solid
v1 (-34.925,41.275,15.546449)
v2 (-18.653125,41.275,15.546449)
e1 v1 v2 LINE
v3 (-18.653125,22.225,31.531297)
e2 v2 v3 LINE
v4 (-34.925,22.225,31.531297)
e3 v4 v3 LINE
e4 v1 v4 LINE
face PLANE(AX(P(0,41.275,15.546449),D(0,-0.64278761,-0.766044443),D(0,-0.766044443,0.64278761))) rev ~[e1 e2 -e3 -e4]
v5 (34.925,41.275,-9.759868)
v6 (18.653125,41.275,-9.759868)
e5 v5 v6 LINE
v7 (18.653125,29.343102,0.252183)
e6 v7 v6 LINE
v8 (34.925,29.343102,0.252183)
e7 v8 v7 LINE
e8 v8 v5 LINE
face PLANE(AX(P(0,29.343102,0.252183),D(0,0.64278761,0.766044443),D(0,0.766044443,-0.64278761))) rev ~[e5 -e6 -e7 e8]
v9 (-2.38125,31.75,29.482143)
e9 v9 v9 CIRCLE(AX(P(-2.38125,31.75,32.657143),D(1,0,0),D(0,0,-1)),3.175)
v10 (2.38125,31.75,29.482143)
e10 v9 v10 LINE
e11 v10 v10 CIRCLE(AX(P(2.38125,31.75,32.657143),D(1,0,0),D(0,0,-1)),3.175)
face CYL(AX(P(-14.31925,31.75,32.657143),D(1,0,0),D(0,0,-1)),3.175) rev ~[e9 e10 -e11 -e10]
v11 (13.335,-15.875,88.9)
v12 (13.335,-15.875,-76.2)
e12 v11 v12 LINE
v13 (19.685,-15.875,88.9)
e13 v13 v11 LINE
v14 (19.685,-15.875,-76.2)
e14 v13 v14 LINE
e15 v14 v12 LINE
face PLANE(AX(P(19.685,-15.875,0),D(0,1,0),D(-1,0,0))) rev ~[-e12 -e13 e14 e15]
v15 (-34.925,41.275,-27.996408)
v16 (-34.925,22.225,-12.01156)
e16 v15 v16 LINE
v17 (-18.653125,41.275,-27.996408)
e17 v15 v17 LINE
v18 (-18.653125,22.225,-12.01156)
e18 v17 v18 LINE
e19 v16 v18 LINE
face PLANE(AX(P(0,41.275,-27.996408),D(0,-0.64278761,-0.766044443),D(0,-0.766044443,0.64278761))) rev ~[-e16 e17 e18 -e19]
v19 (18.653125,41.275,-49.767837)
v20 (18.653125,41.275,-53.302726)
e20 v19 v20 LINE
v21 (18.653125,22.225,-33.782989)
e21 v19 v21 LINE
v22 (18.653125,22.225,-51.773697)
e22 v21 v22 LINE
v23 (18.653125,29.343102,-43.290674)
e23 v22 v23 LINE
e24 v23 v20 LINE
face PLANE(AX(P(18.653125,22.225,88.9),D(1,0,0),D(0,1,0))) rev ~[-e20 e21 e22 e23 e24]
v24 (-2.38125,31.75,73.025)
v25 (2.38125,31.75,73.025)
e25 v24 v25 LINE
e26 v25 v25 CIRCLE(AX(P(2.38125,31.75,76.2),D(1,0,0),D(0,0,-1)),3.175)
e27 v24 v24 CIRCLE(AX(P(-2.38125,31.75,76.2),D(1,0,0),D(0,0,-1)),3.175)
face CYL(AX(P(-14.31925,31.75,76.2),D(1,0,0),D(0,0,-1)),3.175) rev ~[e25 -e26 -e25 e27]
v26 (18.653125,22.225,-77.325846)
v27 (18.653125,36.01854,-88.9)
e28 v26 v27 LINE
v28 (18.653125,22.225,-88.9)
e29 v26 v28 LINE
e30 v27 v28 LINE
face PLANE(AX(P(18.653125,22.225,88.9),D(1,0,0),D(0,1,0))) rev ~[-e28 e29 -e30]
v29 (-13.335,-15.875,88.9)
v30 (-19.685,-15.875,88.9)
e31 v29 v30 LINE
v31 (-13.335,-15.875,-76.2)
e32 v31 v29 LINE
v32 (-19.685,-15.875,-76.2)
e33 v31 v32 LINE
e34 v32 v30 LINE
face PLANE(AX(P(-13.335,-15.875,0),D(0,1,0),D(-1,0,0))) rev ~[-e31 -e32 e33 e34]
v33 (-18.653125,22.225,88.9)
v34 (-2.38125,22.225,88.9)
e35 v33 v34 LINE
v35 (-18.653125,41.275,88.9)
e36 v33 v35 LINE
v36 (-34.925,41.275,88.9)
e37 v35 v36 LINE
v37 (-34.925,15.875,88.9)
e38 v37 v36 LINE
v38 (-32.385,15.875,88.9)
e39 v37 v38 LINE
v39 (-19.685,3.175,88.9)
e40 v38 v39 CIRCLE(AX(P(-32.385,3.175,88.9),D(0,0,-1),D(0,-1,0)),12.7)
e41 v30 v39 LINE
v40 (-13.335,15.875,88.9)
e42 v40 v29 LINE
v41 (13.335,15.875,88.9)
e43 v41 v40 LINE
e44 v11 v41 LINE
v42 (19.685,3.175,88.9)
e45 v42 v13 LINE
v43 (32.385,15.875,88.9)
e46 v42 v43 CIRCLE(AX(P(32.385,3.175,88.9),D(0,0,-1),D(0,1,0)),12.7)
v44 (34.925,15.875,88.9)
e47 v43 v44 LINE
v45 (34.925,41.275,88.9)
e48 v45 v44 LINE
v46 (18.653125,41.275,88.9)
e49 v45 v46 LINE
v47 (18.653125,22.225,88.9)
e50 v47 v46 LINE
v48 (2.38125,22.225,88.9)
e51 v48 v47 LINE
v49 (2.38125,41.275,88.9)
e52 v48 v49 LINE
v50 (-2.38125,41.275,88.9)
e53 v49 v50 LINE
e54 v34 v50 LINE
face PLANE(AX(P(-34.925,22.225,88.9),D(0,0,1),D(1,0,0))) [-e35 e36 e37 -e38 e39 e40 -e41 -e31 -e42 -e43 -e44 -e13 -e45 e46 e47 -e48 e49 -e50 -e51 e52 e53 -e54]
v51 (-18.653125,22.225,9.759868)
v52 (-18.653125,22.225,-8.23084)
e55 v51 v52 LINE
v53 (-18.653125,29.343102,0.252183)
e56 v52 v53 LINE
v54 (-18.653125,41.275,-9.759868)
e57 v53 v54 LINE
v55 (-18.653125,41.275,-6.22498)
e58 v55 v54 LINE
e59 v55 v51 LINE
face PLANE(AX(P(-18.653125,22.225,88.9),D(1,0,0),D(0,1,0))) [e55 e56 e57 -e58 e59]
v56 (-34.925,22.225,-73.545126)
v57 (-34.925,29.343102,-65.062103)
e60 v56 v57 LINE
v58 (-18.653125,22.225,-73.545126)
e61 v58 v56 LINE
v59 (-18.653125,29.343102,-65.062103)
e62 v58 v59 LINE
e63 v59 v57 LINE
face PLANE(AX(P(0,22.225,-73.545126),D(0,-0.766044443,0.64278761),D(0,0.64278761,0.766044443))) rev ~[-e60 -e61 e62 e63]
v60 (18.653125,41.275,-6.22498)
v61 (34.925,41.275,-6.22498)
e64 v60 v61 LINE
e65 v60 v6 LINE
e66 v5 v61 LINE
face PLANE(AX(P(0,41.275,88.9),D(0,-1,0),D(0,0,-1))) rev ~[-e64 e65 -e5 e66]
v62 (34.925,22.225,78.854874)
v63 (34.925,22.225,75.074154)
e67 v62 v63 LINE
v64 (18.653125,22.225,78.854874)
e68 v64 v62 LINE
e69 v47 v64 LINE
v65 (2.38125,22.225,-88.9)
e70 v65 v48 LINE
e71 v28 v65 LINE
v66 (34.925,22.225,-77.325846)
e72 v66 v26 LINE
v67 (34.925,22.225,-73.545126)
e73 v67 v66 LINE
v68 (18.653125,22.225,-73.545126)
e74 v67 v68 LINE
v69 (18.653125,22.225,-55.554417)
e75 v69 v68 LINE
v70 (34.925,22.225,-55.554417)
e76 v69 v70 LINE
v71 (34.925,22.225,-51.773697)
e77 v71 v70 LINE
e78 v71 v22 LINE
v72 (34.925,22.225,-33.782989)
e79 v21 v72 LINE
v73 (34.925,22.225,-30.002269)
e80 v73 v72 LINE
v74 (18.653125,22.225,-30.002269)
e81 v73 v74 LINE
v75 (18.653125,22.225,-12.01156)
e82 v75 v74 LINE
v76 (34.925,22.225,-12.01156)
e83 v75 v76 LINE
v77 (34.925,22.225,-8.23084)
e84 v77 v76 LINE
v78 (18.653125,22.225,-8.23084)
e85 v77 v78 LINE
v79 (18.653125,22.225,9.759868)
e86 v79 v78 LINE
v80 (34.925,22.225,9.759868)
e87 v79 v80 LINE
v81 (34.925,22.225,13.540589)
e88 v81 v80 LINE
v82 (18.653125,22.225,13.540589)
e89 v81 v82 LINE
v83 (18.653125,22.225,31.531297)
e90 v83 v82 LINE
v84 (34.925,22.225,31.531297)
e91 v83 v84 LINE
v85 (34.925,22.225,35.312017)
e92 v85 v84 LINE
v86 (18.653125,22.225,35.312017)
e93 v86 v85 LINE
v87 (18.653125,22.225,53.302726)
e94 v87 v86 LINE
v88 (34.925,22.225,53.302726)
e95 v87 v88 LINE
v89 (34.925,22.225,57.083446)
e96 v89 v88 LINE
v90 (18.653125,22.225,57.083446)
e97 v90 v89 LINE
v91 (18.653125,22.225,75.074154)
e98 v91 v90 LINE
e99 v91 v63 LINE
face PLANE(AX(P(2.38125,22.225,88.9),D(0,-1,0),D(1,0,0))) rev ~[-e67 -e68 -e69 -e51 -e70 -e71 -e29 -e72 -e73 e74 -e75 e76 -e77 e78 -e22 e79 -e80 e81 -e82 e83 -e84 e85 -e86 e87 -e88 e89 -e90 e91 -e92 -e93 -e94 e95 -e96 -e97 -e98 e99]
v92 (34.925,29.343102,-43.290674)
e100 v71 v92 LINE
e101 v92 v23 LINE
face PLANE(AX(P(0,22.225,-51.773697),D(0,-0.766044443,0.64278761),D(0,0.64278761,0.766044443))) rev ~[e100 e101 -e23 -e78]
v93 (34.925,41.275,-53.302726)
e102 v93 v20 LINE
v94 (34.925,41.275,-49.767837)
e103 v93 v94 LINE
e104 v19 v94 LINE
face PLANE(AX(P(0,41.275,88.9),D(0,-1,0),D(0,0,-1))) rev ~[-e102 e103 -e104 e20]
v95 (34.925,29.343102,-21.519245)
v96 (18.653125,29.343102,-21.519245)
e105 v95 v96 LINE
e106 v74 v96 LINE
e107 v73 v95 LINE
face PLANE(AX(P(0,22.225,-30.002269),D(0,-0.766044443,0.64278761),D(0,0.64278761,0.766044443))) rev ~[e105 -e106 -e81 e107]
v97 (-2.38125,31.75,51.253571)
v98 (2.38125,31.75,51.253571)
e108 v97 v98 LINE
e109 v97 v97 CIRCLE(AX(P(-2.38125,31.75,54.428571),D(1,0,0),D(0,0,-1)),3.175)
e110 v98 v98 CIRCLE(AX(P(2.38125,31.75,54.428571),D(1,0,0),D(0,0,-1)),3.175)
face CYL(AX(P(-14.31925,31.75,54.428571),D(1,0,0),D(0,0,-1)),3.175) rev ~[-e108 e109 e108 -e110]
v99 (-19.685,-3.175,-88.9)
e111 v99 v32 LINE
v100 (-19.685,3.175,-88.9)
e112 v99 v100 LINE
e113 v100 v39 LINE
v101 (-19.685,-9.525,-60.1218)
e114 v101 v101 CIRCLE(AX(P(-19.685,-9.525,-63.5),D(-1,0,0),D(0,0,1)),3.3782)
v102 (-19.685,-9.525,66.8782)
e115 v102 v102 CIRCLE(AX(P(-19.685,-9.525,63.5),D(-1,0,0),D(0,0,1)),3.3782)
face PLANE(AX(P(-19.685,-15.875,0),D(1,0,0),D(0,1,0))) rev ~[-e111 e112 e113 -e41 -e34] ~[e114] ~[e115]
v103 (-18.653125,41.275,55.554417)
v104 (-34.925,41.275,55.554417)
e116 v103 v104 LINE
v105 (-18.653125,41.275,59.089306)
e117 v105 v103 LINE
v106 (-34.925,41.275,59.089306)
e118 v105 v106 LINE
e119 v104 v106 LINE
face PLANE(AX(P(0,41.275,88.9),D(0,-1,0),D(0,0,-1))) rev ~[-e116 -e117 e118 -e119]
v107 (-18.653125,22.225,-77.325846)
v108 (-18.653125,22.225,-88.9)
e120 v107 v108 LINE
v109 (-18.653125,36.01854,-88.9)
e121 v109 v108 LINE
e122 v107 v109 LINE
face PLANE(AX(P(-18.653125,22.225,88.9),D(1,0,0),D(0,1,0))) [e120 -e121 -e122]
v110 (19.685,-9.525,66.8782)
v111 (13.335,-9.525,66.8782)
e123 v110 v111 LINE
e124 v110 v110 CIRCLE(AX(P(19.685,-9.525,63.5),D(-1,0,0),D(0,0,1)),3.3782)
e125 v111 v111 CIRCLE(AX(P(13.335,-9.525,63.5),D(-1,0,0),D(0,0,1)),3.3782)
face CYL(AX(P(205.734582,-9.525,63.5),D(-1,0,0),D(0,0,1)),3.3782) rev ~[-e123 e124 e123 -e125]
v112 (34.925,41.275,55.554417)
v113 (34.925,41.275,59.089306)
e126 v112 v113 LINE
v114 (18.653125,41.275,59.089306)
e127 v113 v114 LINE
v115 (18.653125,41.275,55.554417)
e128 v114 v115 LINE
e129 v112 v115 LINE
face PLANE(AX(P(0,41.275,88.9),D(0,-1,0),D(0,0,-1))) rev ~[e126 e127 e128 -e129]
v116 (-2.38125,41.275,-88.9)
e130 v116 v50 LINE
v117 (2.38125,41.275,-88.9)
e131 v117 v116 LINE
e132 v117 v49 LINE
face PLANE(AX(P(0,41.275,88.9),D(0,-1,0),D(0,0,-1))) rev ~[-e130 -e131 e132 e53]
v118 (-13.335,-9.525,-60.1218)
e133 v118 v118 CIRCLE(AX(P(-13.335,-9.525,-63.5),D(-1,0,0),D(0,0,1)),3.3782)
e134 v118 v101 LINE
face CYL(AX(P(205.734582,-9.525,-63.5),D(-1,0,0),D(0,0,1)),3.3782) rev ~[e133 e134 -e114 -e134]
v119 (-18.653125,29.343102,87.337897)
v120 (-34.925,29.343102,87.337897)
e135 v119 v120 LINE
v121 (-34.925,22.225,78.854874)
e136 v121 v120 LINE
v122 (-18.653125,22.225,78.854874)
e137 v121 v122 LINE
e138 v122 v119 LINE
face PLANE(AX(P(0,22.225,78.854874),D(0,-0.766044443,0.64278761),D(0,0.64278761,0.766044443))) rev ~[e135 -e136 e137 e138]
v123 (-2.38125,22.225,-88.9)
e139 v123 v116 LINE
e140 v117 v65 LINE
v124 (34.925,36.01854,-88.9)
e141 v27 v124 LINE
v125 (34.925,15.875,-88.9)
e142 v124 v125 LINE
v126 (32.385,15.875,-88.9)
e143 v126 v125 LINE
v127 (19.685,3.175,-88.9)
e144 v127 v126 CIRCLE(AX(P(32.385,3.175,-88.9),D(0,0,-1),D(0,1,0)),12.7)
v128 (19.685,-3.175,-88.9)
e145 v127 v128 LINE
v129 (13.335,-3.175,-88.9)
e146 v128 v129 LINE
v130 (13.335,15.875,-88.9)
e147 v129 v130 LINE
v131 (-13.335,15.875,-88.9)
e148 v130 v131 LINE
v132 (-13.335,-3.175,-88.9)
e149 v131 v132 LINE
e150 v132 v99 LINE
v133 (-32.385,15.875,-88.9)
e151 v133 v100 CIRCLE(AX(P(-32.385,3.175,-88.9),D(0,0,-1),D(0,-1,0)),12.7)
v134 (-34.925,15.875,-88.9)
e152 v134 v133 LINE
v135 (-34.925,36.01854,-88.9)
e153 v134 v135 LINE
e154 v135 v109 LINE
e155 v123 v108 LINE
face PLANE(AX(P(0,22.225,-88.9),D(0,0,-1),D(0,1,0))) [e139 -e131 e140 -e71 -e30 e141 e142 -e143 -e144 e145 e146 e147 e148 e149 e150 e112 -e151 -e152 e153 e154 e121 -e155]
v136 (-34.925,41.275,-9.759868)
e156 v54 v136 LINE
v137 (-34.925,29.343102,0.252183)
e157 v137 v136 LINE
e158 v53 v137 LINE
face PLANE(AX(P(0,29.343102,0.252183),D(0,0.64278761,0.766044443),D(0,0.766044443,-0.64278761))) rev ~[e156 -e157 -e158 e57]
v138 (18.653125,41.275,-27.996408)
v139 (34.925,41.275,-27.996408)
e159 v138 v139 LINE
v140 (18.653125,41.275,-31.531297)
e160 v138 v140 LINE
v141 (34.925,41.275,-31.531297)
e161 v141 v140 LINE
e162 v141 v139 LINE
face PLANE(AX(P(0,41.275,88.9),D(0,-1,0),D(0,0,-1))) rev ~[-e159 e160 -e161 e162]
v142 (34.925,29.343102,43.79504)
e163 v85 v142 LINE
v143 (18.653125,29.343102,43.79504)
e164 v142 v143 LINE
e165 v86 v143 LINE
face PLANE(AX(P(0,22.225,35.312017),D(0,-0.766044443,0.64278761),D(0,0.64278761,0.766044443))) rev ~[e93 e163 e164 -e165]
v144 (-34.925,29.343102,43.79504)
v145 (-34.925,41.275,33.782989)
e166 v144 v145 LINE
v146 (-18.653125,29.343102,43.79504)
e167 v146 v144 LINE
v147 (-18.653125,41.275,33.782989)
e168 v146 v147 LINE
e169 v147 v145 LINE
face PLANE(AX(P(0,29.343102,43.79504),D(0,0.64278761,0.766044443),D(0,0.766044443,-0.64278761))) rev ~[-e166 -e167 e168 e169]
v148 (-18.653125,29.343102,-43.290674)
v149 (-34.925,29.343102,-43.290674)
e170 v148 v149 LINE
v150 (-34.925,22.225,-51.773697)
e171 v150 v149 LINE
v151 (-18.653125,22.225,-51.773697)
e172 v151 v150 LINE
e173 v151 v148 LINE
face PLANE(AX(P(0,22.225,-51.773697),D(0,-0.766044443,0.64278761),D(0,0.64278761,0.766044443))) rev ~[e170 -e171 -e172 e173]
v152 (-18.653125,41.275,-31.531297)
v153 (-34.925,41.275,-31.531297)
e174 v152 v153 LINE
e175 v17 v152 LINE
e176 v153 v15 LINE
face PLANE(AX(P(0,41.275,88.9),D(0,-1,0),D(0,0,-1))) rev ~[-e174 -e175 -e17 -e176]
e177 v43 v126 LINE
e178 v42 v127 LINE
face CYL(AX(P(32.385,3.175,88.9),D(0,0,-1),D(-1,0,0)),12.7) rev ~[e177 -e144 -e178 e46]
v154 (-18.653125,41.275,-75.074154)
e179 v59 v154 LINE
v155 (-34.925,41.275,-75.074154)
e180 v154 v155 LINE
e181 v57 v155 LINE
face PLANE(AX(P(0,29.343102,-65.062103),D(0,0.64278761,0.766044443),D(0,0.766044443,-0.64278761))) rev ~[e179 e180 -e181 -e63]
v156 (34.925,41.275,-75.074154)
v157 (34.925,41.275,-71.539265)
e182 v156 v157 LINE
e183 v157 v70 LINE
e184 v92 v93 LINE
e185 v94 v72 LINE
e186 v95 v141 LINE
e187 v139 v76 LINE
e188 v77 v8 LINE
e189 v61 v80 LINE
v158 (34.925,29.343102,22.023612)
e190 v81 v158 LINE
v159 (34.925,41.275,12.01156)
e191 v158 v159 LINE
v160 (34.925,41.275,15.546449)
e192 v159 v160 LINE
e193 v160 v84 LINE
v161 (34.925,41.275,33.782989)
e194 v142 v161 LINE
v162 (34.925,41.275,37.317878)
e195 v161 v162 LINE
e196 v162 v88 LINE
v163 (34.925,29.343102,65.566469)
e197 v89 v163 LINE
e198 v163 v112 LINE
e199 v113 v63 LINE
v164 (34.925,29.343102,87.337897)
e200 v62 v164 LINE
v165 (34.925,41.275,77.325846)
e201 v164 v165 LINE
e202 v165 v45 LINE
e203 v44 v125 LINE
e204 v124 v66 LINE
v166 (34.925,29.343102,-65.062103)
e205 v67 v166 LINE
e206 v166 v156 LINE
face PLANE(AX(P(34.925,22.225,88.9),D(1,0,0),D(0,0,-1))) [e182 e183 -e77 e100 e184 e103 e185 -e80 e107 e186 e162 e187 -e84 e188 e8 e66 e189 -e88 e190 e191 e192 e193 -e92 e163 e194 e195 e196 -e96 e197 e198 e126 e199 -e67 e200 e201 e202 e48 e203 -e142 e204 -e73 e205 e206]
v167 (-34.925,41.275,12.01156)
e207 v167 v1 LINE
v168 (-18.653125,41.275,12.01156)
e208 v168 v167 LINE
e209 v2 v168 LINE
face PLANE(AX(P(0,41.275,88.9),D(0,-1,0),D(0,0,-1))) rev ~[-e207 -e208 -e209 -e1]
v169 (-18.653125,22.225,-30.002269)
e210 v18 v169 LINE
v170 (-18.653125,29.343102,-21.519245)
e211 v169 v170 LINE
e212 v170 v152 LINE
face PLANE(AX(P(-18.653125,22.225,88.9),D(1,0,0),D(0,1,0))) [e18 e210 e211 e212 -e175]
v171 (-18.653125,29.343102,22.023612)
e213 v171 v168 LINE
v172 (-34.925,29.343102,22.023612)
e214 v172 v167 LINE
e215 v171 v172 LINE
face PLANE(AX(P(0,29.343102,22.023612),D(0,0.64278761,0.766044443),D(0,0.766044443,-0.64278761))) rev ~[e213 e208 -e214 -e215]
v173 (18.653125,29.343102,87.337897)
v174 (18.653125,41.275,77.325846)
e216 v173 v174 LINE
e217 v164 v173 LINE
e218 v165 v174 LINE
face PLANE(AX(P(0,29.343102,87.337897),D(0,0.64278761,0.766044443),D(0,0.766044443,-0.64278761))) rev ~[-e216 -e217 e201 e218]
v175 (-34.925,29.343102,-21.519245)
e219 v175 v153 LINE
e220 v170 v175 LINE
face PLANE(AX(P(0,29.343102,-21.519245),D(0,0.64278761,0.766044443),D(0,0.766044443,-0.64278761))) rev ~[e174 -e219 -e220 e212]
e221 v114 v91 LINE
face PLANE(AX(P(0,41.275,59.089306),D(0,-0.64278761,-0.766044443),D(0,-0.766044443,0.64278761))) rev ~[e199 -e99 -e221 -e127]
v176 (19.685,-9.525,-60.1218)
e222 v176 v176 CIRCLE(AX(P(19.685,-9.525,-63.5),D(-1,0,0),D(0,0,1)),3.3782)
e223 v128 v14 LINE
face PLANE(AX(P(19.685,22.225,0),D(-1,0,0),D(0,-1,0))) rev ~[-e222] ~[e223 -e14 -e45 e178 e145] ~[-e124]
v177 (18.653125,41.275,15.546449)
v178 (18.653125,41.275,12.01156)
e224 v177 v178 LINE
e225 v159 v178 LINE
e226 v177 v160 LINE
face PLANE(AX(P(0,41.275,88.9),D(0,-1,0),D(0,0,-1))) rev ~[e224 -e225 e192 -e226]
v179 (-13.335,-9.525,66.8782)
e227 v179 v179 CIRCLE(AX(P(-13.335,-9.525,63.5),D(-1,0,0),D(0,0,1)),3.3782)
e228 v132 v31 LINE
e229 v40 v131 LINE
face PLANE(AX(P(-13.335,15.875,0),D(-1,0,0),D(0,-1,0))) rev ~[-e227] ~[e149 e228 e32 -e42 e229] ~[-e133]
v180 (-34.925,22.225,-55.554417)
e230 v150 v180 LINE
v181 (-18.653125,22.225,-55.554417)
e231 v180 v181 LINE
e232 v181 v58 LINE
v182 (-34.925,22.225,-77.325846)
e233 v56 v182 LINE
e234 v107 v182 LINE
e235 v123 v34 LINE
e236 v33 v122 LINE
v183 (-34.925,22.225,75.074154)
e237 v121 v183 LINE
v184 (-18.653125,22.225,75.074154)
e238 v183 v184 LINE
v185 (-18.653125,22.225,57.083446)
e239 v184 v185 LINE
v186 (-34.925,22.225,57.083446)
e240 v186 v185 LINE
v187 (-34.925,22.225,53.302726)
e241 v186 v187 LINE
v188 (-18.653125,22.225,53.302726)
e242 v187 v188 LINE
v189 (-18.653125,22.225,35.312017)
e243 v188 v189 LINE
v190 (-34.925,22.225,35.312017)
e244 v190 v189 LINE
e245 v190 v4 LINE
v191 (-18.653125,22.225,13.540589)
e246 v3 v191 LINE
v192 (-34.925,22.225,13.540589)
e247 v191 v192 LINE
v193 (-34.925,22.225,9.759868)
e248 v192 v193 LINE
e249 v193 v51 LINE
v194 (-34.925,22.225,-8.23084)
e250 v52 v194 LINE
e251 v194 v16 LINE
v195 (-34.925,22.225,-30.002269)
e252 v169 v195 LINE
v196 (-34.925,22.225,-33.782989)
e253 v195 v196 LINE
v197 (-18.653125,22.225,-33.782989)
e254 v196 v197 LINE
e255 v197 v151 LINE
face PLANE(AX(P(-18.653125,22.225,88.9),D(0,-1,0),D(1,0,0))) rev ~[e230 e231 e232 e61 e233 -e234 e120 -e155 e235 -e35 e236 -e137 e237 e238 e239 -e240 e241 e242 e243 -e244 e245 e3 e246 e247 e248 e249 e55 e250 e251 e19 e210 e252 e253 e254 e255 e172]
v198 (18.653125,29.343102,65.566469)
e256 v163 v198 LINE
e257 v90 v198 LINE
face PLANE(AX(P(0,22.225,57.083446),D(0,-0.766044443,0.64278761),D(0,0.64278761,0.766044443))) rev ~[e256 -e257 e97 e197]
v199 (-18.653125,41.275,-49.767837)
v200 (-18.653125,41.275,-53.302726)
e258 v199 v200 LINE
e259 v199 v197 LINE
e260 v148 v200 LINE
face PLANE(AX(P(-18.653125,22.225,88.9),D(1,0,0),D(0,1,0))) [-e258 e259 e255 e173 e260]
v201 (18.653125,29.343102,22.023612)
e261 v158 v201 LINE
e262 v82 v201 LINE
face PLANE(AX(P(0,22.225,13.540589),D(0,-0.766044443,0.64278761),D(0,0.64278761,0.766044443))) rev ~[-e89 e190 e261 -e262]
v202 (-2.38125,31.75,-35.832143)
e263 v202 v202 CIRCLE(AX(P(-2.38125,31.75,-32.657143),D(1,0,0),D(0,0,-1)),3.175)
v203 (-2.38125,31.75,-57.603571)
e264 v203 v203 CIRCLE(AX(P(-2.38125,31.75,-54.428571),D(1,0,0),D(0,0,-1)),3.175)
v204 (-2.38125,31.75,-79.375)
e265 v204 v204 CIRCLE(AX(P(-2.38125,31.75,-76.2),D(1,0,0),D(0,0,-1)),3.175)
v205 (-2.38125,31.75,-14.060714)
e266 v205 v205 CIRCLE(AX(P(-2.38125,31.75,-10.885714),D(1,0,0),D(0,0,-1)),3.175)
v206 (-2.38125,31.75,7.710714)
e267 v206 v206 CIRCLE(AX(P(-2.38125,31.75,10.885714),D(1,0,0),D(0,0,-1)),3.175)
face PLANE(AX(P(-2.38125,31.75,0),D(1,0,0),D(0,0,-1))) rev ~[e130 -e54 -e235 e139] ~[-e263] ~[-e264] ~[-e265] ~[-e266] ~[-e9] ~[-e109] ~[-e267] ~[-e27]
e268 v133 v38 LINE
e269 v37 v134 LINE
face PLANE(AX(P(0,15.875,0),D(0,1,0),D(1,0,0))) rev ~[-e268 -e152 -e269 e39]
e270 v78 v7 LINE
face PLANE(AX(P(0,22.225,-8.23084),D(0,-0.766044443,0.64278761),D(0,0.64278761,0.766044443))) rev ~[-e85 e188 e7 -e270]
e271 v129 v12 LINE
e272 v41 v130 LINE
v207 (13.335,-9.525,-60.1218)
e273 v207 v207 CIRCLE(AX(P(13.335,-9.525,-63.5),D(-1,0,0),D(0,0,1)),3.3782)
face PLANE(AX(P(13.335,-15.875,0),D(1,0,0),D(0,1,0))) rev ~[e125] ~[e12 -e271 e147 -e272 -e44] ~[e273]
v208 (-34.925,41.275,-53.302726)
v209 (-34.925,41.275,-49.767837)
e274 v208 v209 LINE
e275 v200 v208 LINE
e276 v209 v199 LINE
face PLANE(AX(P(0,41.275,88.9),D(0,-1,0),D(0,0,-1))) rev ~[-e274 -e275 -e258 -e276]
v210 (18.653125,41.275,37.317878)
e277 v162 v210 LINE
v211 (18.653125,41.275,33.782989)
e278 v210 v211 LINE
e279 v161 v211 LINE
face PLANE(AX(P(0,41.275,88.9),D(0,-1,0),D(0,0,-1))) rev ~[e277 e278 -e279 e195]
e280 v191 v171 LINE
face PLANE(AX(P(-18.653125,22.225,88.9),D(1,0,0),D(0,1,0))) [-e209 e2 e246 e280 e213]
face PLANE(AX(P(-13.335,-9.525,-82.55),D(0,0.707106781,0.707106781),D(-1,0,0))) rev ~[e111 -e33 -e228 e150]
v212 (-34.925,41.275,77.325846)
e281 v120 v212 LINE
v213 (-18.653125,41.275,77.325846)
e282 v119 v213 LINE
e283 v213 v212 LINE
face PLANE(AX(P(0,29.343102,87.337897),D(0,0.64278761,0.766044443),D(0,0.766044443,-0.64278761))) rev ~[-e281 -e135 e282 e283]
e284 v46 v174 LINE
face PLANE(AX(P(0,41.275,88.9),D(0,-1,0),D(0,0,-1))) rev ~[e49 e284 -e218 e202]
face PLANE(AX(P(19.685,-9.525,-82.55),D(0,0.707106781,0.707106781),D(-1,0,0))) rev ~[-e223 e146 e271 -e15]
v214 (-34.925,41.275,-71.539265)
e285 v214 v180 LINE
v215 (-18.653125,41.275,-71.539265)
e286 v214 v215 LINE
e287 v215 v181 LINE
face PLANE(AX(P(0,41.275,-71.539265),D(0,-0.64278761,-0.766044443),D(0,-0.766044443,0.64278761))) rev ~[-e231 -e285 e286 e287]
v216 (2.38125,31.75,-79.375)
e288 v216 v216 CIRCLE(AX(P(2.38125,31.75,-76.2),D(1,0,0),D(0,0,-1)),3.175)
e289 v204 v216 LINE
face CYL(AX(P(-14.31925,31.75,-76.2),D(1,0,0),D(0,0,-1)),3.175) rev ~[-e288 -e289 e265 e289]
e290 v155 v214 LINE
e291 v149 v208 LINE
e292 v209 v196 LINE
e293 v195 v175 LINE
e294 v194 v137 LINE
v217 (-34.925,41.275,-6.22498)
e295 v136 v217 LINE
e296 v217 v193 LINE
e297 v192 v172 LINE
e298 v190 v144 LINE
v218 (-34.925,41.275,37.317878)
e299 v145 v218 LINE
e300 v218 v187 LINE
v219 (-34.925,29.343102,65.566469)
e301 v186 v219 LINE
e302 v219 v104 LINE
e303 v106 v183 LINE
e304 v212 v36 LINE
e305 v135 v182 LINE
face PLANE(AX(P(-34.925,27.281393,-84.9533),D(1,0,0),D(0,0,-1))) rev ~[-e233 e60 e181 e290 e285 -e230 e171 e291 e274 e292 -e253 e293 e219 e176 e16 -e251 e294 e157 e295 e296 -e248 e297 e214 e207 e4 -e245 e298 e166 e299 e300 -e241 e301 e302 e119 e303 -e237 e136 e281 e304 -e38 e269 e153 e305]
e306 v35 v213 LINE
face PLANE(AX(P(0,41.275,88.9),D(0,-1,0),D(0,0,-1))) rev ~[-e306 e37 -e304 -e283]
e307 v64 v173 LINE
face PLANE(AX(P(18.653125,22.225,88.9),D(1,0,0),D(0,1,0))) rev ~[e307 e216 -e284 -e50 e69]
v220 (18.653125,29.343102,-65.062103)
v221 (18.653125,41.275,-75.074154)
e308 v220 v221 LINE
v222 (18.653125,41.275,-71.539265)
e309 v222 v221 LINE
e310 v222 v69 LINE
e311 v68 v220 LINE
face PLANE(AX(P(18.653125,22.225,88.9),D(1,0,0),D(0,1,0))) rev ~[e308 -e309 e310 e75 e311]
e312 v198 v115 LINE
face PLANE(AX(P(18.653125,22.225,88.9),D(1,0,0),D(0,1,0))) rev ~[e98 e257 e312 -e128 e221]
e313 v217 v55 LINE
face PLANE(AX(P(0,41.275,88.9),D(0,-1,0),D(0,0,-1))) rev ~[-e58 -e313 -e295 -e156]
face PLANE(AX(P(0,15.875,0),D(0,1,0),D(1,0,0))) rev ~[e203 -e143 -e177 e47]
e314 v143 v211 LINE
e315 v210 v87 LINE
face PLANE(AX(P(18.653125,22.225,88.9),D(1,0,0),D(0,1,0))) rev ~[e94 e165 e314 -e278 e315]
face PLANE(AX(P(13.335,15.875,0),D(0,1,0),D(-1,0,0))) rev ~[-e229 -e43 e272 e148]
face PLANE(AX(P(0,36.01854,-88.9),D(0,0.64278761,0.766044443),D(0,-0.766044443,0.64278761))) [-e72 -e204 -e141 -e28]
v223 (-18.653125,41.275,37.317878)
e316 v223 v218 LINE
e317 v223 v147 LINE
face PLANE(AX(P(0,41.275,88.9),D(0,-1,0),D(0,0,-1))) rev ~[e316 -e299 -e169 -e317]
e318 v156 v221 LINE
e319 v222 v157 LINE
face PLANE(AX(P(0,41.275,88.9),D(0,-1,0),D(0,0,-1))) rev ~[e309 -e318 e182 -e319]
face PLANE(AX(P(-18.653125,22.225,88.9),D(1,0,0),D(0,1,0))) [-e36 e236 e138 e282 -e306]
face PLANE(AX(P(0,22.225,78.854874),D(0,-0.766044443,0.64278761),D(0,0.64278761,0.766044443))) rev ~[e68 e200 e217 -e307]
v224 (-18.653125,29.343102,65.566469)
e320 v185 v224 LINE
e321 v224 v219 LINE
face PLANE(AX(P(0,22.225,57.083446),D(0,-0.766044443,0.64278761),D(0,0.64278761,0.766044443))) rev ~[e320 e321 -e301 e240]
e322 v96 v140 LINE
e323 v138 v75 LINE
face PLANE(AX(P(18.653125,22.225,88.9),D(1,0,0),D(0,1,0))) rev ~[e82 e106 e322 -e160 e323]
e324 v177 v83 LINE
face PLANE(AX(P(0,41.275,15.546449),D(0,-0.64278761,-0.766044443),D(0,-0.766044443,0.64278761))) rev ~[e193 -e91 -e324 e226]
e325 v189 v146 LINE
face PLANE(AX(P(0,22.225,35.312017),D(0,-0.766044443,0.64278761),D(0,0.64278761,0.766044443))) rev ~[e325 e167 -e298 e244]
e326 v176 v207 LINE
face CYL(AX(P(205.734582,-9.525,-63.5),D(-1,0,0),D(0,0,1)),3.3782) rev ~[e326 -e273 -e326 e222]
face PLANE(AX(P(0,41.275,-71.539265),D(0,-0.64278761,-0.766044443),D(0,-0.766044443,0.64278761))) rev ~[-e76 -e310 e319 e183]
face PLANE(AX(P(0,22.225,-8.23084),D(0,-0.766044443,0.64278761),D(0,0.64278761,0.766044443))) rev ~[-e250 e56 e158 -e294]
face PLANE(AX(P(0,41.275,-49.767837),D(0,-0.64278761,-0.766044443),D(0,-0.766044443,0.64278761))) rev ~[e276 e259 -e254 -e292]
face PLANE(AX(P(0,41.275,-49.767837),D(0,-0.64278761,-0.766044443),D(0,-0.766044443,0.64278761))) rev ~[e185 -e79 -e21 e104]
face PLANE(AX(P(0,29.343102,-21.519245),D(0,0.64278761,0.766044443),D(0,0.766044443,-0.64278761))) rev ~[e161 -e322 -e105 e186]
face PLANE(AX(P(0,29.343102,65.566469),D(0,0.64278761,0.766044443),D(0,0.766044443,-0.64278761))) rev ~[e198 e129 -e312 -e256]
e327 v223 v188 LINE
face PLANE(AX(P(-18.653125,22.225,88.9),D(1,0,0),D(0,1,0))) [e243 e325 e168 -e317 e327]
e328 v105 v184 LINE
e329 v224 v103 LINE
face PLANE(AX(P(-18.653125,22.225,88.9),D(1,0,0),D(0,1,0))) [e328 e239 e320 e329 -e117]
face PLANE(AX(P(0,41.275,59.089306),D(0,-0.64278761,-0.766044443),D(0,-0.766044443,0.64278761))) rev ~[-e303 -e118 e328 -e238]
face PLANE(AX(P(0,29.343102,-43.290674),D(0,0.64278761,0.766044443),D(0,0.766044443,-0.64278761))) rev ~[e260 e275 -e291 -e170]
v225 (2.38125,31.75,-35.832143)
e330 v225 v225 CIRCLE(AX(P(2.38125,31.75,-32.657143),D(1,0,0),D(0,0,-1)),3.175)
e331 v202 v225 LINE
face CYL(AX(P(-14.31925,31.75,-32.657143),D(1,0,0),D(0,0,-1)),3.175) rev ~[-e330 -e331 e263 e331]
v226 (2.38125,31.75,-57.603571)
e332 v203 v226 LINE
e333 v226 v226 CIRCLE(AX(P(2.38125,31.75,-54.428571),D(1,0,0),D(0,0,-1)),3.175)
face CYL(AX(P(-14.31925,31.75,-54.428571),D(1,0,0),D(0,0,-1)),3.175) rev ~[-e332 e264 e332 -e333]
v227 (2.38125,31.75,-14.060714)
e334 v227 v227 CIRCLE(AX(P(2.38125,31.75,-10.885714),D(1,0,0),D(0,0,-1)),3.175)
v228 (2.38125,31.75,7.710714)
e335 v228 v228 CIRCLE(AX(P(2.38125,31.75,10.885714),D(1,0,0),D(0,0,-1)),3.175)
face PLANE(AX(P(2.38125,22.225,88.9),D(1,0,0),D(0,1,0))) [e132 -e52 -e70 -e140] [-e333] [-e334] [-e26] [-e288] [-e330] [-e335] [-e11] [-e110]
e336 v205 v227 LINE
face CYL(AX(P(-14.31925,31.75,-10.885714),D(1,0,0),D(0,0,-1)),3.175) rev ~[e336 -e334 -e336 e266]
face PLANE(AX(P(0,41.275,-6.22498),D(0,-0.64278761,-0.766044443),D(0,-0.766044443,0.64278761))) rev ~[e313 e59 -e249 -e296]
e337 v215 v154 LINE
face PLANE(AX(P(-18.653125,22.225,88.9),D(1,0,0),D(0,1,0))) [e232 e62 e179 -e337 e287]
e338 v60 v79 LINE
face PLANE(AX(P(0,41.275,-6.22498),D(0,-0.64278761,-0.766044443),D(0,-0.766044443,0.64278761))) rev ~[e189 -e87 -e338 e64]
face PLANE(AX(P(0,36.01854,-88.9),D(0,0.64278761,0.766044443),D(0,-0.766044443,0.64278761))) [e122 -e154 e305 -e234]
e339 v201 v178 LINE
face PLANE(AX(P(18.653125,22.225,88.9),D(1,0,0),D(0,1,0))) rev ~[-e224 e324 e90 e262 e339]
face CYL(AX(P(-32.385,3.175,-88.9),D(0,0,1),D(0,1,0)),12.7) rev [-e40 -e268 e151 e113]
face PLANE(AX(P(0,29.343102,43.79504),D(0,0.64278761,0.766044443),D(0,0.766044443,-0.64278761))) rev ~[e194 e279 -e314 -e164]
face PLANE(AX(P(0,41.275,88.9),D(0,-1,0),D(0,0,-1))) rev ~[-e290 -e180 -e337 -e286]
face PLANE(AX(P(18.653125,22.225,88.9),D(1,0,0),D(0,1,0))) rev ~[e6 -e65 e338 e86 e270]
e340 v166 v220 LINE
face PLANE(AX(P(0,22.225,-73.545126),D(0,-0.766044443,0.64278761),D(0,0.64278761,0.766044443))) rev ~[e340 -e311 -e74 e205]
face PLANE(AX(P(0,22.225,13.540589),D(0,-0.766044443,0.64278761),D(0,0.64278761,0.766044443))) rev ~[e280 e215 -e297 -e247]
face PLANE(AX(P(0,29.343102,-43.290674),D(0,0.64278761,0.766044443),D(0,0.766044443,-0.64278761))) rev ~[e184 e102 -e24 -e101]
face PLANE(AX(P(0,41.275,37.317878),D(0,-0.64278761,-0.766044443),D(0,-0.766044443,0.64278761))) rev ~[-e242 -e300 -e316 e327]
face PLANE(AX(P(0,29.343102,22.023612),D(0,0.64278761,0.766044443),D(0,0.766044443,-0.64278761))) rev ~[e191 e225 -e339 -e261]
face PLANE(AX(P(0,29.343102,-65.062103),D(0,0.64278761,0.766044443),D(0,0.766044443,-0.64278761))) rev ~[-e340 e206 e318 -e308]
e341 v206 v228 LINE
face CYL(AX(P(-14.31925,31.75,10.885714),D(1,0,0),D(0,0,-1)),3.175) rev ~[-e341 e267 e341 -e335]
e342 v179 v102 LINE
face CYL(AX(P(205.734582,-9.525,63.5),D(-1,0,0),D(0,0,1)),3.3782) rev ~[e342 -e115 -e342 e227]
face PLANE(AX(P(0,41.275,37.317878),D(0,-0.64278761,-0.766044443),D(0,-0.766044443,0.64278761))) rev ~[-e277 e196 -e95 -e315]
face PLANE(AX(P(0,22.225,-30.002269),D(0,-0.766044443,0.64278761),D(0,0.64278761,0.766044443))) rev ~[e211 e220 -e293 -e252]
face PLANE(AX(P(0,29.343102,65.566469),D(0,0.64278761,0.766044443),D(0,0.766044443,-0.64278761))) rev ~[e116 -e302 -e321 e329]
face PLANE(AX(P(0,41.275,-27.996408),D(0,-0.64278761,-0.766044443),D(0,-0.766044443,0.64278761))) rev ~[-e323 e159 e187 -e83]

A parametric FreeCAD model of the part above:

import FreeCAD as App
import Part
import Sketcher

V = App.Vector
Q = App.Units.Quantity


def edges_at(feature, points):
    """Names of the edges that pass closest to the given points."""
    edges = feature.Shape.Edges
    near = lambda p: min(range(len(edges)), key=lambda i: edges[i].distToShape(Part.Vertex(*p))[0])
    return sorted({f"Edge{near(p) + 1}" for p in points})

doc = App.newDocument("Part")
params = doc.addObject("Spreadsheet::Sheet", "Params")
for row, (alias, value) in enumerate([
    ("sketch1_height", "1.5 in"),
    ("sketch1_width", "1.55 in"),
    ("sketch1_width2", "0.25 in"),
    ("sketch1_height2", "1.25 in"),
    ("pad1_length", "7 in"),
    ("sketch2_diameter", "0.266 in"),
    ("hole_diameter", "0.266 in"),
    ("chamfer_size", "0.5 in"),
    ("sketch3_height", "7 in"),
    ("sketch3_width", "2.75 in"),
    ("pad2_length", "0.25 in"),
    ("sketch4_height", "7 in"),
    ("sketch4_width", "0.75 in"),
    ("pad3_length", "0.1875 in"),
    ("sketch5_diameter", "0.25 in"),
    ("hole2_diameter", "0.25 in"),
    ("hole2_depth", "0.47 in"),
    ("fillet_radius", "0.5 in"),
    ("sketch6_width", "0.75 in"),
    ("pad4_length", "2.75 in"),
    ("sketch7_height", "0.75 in"),
    ("sketch7_width", "0.640625 in"),
], start=1):
    params.set(f"A{row}", alias)
    params.set(f"B{row}", "=" + value)
    params.setAlias(f"B{row}", alias)

body = doc.addObject("PartDesign::Body", "Body")

# Sketch on XY plane
sketch1 = body.newObject("Sketcher::SketchObject", "Sketch")
sketch1.AttachmentSupport = (doc.getObject("XY_Plane"), [""])
sketch1.MapMode = "FlatFace"
sketch1.addGeometry([
    Part.LineSegment(V(20, 22, 0), V(-20, 22, 0)),  # 0
    Part.LineSegment(V(-20, 22, 0), V(-20, -16, 0)),  # 1
    Part.LineSegment(V(-20, -16, 0), V(-13, -16, 0)),  # 2
    Part.LineSegment(V(-13, -16, 0), V(-13, 16, 0)),  # 3
    Part.LineSegment(V(-13, 16, 0), V(13, 16, 0)),  # 4
    Part.LineSegment(V(13, 16, 0), V(13, -16, 0)),  # 5
    Part.LineSegment(V(13, -16, 0), V(20, -16, 0)),  # 6
    Part.LineSegment(V(20, -16, 0), V(20, 22, 0)),  # 7
], False)
sketch1.addConstraint([
    Sketcher.Constraint("Coincident", 0, 2, 1, 1),
    Sketcher.Constraint("Coincident", 1, 2, 2, 1),
    Sketcher.Constraint("Coincident", 2, 2, 3, 1),
    Sketcher.Constraint("Coincident", 3, 2, 4, 1),
    Sketcher.Constraint("Coincident", 4, 2, 5, 1),
    Sketcher.Constraint("Coincident", 5, 2, 6, 1),
    Sketcher.Constraint("Coincident", 6, 2, 7, 1),
    Sketcher.Constraint("Coincident", 7, 2, 0, 1),
    Sketcher.Constraint("Horizontal", 0),
    Sketcher.Constraint("Vertical", 1),
    Sketcher.Constraint("Horizontal", 2),
    Sketcher.Constraint("Vertical", 3),
    Sketcher.Constraint("Horizontal", 4),
    Sketcher.Constraint("Vertical", 5),
    Sketcher.Constraint("Horizontal", 6),
    Sketcher.Constraint("Vertical", 7),
    Sketcher.Constraint("Symmetric", 2, 2, 4, 2, -1, 1),
    Sketcher.Constraint("Symmetric", 1, 2, 6, 2, -2),
    Sketcher.Constraint("DistanceY", 1, 2, 1, 1, Q("1.5 in")),
    Sketcher.Constraint("DistanceX", 0, 2, 0, 1, Q("1.55 in")),
    Sketcher.Constraint("DistanceX", 2, 1, 2, 2, Q("0.25 in")),
    Sketcher.Constraint("DistanceY", 3, 1, 3, 2, Q("1.25 in")),
])
sketch1.setExpression("Constraints[18]", "Params.sketch1_height")
sketch1.setExpression("Constraints[19]", "Params.sketch1_width")
sketch1.setExpression("Constraints[20]", "Params.sketch1_width2")
sketch1.setExpression("Constraints[21]", "Params.sketch1_height2")
pad1 = body.newObject("PartDesign::Pad", "Pad")
pad1.Profile = sketch1
pad1.setExpression("Length", "Params.pad1_length")
pad1.Midplane = True

# Sketch on YZ plane
sketch2 = body.newObject("Sketcher::SketchObject", "Sketch001")
sketch2.AttachmentSupport = (doc.getObject("YZ_Plane"), [""])
sketch2.MapMode = "FlatFace"
sketch2.AttachmentOffset = App.Placement(V(0, 0, 0.775 * 25.4), App.Rotation())
sketch2.addGeometry([
    Part.Circle(V(-9.5, 63.5, 0), V(0, 0, 1), 3.4),
    Part.Circle(V(-9.5, -63.5, 0), V(0, 0, 1), 3.4),
], False)
sketch2.addConstraint([
    Sketcher.Constraint("Equal", 0, 1),
    Sketcher.Constraint("Symmetric", 0, 3, 1, 3, -1),
    Sketcher.Constraint("Diameter", 0, Q("0.266 in")),
    Sketcher.Constraint("DistanceY", 1, 3, 0, 3, Q("5 in")),
    Sketcher.Constraint("DistanceX", 0, 3, -1, 1, Q("0.375 in")),
])
sketch2.setExpression("Constraints[2]", "Params.sketch2_diameter")
doc.recompute()
hole = body.newObject("PartDesign::Hole", "Hole")
hole.Profile = sketch2
hole.ThreadType = "None"
hole.setExpression("Diameter", "Params.hole_diameter")
hole.DepthType = "ThroughAll"
doc.recompute()

chamfer = body.newObject("PartDesign::Chamfer", "Chamfer")
chamfer.Base = (hole, edges_at(hole, [(16.51, -15.875, -88.9), (-16.51, -15.875, -88.9)]))
chamfer.setExpression("Size", "Params.chamfer_size")

# Sketch on XZ plane
sketch3 = body.newObject("Sketcher::SketchObject", "Sketch002")
sketch3.AttachmentSupport = (doc.getObject("XZ_Plane"), [""])
sketch3.MapMode = "FlatFace"
sketch3.AttachmentOffset = App.Placement(V(0, 0, -0.875 * 25.4), App.Rotation())
sketch3.addGeometry([
    Part.LineSegment(V(-35, -89, 0), V(-35, 89, 0)),
    Part.LineSegment(V(-35, 89, 0), V(35, 89, 0)),
    Part.LineSegment(V(35, 89, 0), V(35, -89, 0)),
    Part.LineSegment(V(35, -89, 0), V(-35, -89, 0)),
], False)
sketch3.addConstraint([
    Sketcher.Constraint("Coincident", 0, 2, 1, 1),
    Sketcher.Constraint("Coincident", 1, 2, 2, 1),
    Sketcher.Constraint("Coincident", 2, 2, 3, 1),
    Sketcher.Constraint("Coincident", 3, 2, 0, 1),
    Sketcher.Constraint("Vertical", 0),
    Sketcher.Constraint("Horizontal", 1),
    Sketcher.Constraint("Vertical", 2),
    Sketcher.Constraint("Horizontal", 3),
    Sketcher.Constraint("Symmetric", 0, 2, 2, 2, -1, 1),
    Sketcher.Constraint("DistanceY", 0, 1, 0, 2, Q("7 in")),
    Sketcher.Constraint("DistanceX", 1, 1, 1, 2, Q("2.75 in")),
])
sketch3.setExpression("Constraints[9]", "Params.sketch3_height")
sketch3.setExpression("Constraints[10]", "Params.sketch3_width")
pad2 = body.newObject("PartDesign::Pad", "Pad001")
pad2.Profile = sketch3
pad2.setExpression("Length", "Params.pad2_length")

# Sketch on YZ plane
sketch4 = body.newObject("Sketcher::SketchObject", "Sketch003")
sketch4.AttachmentSupport = (doc.getObject("YZ_Plane"), [""])
sketch4.MapMode = "FlatFace"
sketch4.addGeometry([
    Part.LineSegment(V(41, 89, 0), V(22, 89, 0)),
    Part.LineSegment(V(22, 89, 0), V(22, -89, 0)),
    Part.LineSegment(V(22, -89, 0), V(41, -89, 0)),
    Part.LineSegment(V(41, -89, 0), V(41, 89, 0)),
], False)
sketch4.addConstraint([
    Sketcher.Constraint("Coincident", 0, 2, 1, 1),
    Sketcher.Constraint("Coincident", 1, 2, 2, 1),
    Sketcher.Constraint("Coincident", 2, 2, 3, 1),
    Sketcher.Constraint("Coincident", 3, 2, 0, 1),
    Sketcher.Constraint("Horizontal", 0),
    Sketcher.Constraint("Vertical", 1),
    Sketcher.Constraint("Horizontal", 2),
    Sketcher.Constraint("Vertical", 3),
    Sketcher.Constraint("DistanceY", 1, 2, 1, 1, Q("7 in")),
    Sketcher.Constraint("DistanceX", 0, 2, 0, 1, Q("0.75 in")),
    Sketcher.Constraint("DistanceY", -1, 1, 0, 2, Q("3.5 in")),
    Sketcher.Constraint("DistanceX", -1, 1, 0, 2, Q("0.875 in")),
])
sketch4.setExpression("Constraints[8]", "Params.sketch4_height")
sketch4.setExpression("Constraints[9]", "Params.sketch4_width")
pad3 = body.newObject("PartDesign::Pad", "Pad002")
pad3.Profile = sketch4
pad3.setExpression("Length", "Params.pad3_length")
pad3.Midplane = True

# Sketch on YZ plane
sketch5 = body.newObject("Sketcher::SketchObject", "Sketch004")
sketch5.AttachmentSupport = (doc.getObject("YZ_Plane"), [""])
sketch5.MapMode = "FlatFace"
sketch5.AttachmentOffset = App.Placement(V(0, 0, -0.09375 * 25.4), App.Rotation())
sketch5.addGeometry([
    Part.Circle(V(31.8, -76.2, 0), V(0, 0, 1), 3.2),  # 0
    Part.Circle(V(31.8, 76.2, 0), V(0, 0, 1), 3.2),  # 1
    Part.Circle(V(31.8, 54.4, 0), V(0, 0, 1), 3.2),  # 2
    Part.Circle(V(31.8, 32.7, 0), V(0, 0, 1), 3.2),  # 3
    Part.Circle(V(31.8, 10.9, 0), V(0, 0, 1), 3.2),  # 4
    Part.Circle(V(31.8, -10.9, 0), V(0, 0, 1), 3.2),  # 5
    Part.Circle(V(31.8, -32.7, 0), V(0, 0, 1), 3.2),  # 6
    Part.Circle(V(31.8, -54.4, 0), V(0, 0, 1), 3.2),  # 7
], False)
sketch5.addConstraint([
    Sketcher.Constraint("Equal", 0, 1),
    Sketcher.Constraint("Equal", 1, 2),
    Sketcher.Constraint("Equal", 2, 3),
    Sketcher.Constraint("Equal", 3, 4),
    Sketcher.Constraint("Equal", 4, 5),
    Sketcher.Constraint("Equal", 5, 6),
    Sketcher.Constraint("Equal", 6, 7),
    Sketcher.Constraint("Symmetric", 0, 3, 1, 3, -1),
    Sketcher.Constraint("Symmetric", 4, 3, 5, 3, -1),
    Sketcher.Constraint("Symmetric", 3, 3, 6, 3, -1),
    Sketcher.Constraint("Symmetric", 2, 3, 7, 3, -1),
    Sketcher.Constraint("Vertical", 1, 3, 2, 3),
    Sketcher.Constraint("Vertical", 2, 3, 3, 3),
    Sketcher.Constraint("Vertical", 3, 3, 4, 3),
    Sketcher.Constraint("Diameter", 0, Q("0.25 in")),
    Sketcher.Constraint("DistanceY", 0, 3, -1, 1, Q("3 in")),
    Sketcher.Constraint("DistanceX", -1, 1, 0, 3, Q("1.25 in")),
    Sketcher.Constraint("DistanceY", -1, 1, 2, 3, Q("54.428571 mm")),
    Sketcher.Constraint("DistanceY", 3, 3, 2, 3, Q("21.771429 mm")),
    Sketcher.Constraint("DistanceY", 4, 3, 3, 3, Q("21.771429 mm")),
])
sketch5.setExpression("Constraints[14]", "Params.sketch5_diameter")
doc.recompute()
hole2 = body.newObject("PartDesign::Hole", "Hole001")
hole2.Profile = sketch5
hole2.ThreadType = "None"
hole2.setExpression("Diameter", "Params.hole2_diameter")
hole2.DepthType = "Dimension"
hole2.setExpression("Depth", "Params.hole2_depth")
hole2.DrillPoint = "Angled"
hole2.DrillPointAngle = 118
hole2.Reversed = True
doc.recompute()

fillet = body.newObject("PartDesign::Fillet", "Fillet")
fillet.Base = (hole2, edges_at(hole2, [(19.685, 15.875, 0), (-19.685, 15.875, 0)]))
fillet.setExpression("Radius", "Params.fillet_radius")

# Sketch on YZ plane
sketch6 = body.newObject("Sketcher::SketchObject", "Sketch005")
sketch6.AttachmentSupport = (doc.getObject("YZ_Plane"), [""])
sketch6.MapMode = "FlatFace"
sketch6.addGeometry([
    Part.LineSegment(V(41.3, 88.9, 0), V(22.2, 88.9, 0)),  # 0
    Part.LineSegment(V(22.2, 88.9, 0), V(22.2, 78.9, 0)),  # 1
    Part.LineSegment(V(22.2, 78.9, 0), V(29.3, 87.3, 0)),  # 2
    Part.LineSegment(V(29.3, 87.3, 0), V(41.3, 77.3, 0)),  # 3
    Part.LineSegment(V(41.3, 77.3, 0), V(41.3, 88.9, 0)),  # 4
    Part.LineSegment(V(41.3, 59.1, 0), V(22.2, 75.1, 0)),  # 5
    Part.LineSegment(V(22.2, 75.1, 0), V(22.2, 57.1, 0)),  # 6
    Part.LineSegment(V(22.2, 57.1, 0), V(29.3, 65.6, 0)),  # 7
    Part.LineSegment(V(29.3, 65.6, 0), V(41.3, 55.6, 0)),  # 8
    Part.LineSegment(V(41.3, 55.6, 0), V(41.3, 59.1, 0)),  # 9
    Part.LineSegment(V(41.3, 37.3, 0), V(22.2, 53.3, 0)),  # 10
    Part.LineSegment(V(22.2, 53.3, 0), V(22.2, 35.3, 0)),  # 11
    Part.LineSegment(V(22.2, 35.3, 0), V(29.3, 43.8, 0)),  # 12
    Part.LineSegment(V(29.3, 43.8, 0), V(41.3, 33.8, 0)),  # 13
    Part.LineSegment(V(41.3, 33.8, 0), V(41.3, 37.3, 0)),  # 14
    Part.LineSegment(V(41.3, 12, 0), V(41.3, 15.5, 0)),  # 15
    Part.LineSegment(V(41.3, 15.5, 0), V(22.2, 31.5, 0)),  # 16
    Part.LineSegment(V(22.2, 31.5, 0), V(22.2, 13.5, 0)),  # 17
    Part.LineSegment(V(22.2, 13.5, 0), V(29.3, 22, 0)),  # 18
    Part.LineSegment(V(29.3, 22, 0), V(41.3, 12, 0)),  # 19
    Part.LineSegment(V(41.3, -9.8, 0), V(41.3, -6.2, 0)),  # 20
    Part.LineSegment(V(41.3, -6.2, 0), V(22.2, 9.8, 0)),  # 21
    Part.LineSegment(V(22.2, 9.8, 0), V(22.2, -8.2, 0)),  # 22
    Part.LineSegment(V(22.2, -8.2, 0), V(29.3, 0.3, 0)),  # 23
    Part.LineSegment(V(29.3, 0.3, 0), V(41.3, -9.8, 0)),  # 24
    Part.LineSegment(V(41.3, -31.5, 0), V(41.3, -28, 0)),  # 25
    Part.LineSegment(V(41.3, -28, 0), V(22.2, -12, 0)),  # 26
    Part.LineSegment(V(22.2, -12, 0), V(22.2, -30, 0)),  # 27
    Part.LineSegment(V(22.2, -30, 0), V(29.3, -21.5, 0)),  # 28
    Part.LineSegment(V(29.3, -21.5, 0), V(41.3, -31.5, 0)),  # 29
    Part.LineSegment(V(41.3, -53.3, 0), V(41.3, -49.8, 0)),  # 30
    Part.LineSegment(V(41.3, -49.8, 0), V(22.2, -33.8, 0)),  # 31
    Part.LineSegment(V(22.2, -33.8, 0), V(22.2, -51.8, 0)),  # 32
    Part.LineSegment(V(22.2, -51.8, 0), V(29.3, -43.3, 0)),  # 33
    Part.LineSegment(V(29.3, -43.3, 0), V(41.3, -53.3, 0)),  # 34
    Part.LineSegment(V(41.3, -75.1, 0), V(41.3, -71.5, 0)),  # 35
    Part.LineSegment(V(41.3, -71.5, 0), V(22.2, -55.6, 0)),  # 36
    Part.LineSegment(V(22.2, -55.6, 0), V(22.2, -73.5, 0)),  # 37
    Part.LineSegment(V(22.2, -73.5, 0), V(29.3, -65.1, 0)),  # 38
    Part.LineSegment(V(29.3, -65.1, 0), V(41.3, -75.1, 0)),  # 39
    Part.LineSegment(V(22.2, -88.9, 0), V(36, -88.9, 0)),  # 40
    Part.LineSegment(V(36, -88.9, 0), V(22.2, -77.3, 0)),  # 41
    Part.LineSegment(V(22.2, -77.3, 0), V(22.2, -88.9, 0)),  # 42
], False)
sketch6.addConstraint([
    Sketcher.Constraint("Coincident", 0, 2, 1, 1),
    Sketcher.Constraint("Coincident", 1, 2, 2, 1),
    Sketcher.Constraint("Coincident", 2, 2, 3, 1),
    Sketcher.Constraint("Coincident", 3, 2, 4, 1),
    Sketcher.Constraint("Coincident", 4, 2, 0, 1),
    Sketcher.Constraint("Coincident", 5, 2, 6, 1),
    Sketcher.Constraint("Coincident", 6, 2, 7, 1),
    Sketcher.Constraint("Coincident", 7, 2, 8, 1),
    Sketcher.Constraint("Coincident", 8, 2, 9, 1),
    Sketcher.Constraint("Coincident", 9, 2, 5, 1),
    Sketcher.Constraint("Coincident", 10, 2, 11, 1),
    Sketcher.Constraint("Coincident", 11, 2, 12, 1),
    Sketcher.Constraint("Coincident", 12, 2, 13, 1),
    Sketcher.Constraint("Coincident", 13, 2, 14, 1),
    Sketcher.Constraint("Coincident", 14, 2, 10, 1),
    Sketcher.Constraint("Coincident", 15, 2, 16, 1),
    Sketcher.Constraint("Coincident", 16, 2, 17, 1),
    Sketcher.Constraint("Coincident", 17, 2, 18, 1),
    Sketcher.Constraint("Coincident", 18, 2, 19, 1),
    Sketcher.Constraint("Coincident", 19, 2, 15, 1),
    Sketcher.Constraint("Coincident", 20, 2, 21, 1),
    Sketcher.Constraint("Coincident", 21, 2, 22, 1),
    Sketcher.Constraint("Coincident", 22, 2, 23, 1),
    Sketcher.Constraint("Coincident", 23, 2, 24, 1),
    Sketcher.Constraint("Coincident", 24, 2, 20, 1),
    Sketcher.Constraint("Coincident", 25, 2, 26, 1),
    Sketcher.Constraint("Coincident", 26, 2, 27, 1),
    Sketcher.Constraint("Coincident", 27, 2, 28, 1),
    Sketcher.Constraint("Coincident", 28, 2, 29, 1),
    Sketcher.Constraint("Coincident", 29, 2, 25, 1),
    Sketcher.Constraint("Coincident", 30, 2, 31, 1),
    Sketcher.Constraint("Coincident", 31, 2, 32, 1),
    Sketcher.Constraint("Coincident", 32, 2, 33, 1),
    Sketcher.Constraint("Coincident", 33, 2, 34, 1),
    Sketcher.Constraint("Coincident", 34, 2, 30, 1),
    Sketcher.Constraint("Coincident", 35, 2, 36, 1),
    Sketcher.Constraint("Coincident", 36, 2, 37, 1),
    Sketcher.Constraint("Coincident", 37, 2, 38, 1),
    Sketcher.Constraint("Coincident", 38, 2, 39, 1),
    Sketcher.Constraint("Coincident", 39, 2, 35, 1),
    Sketcher.Constraint("Coincident", 40, 2, 41, 1),
    Sketcher.Constraint("Coincident", 41, 2, 42, 1),
    Sketcher.Constraint("Coincident", 42, 2, 40, 1),
    Sketcher.Constraint("Horizontal", 0),
    Sketcher.Constraint("Vertical", 1),
    Sketcher.Constraint("Vertical", 4),
    Sketcher.Constraint("Vertical", 6),
    Sketcher.Constraint("Vertical", 9),
    Sketcher.Constraint("Vertical", 11),
    Sketcher.Constraint("Vertical", 14),
    Sketcher.Constraint("Vertical", 15),
    Sketcher.Constraint("Vertical", 17),
    Sketcher.Constraint("Vertical", 20),
    Sketcher.Constraint("Vertical", 22),
    Sketcher.Constraint("Vertical", 25),
    Sketcher.Constraint("Vertical", 27),
    Sketcher.Constraint("Vertical", 30),
    Sketcher.Constraint("Vertical", 32),
    Sketcher.Constraint("Vertical", 35),
    Sketcher.Constraint("Vertical", 37),
    Sketcher.Constraint("Horizontal", 40),
    Sketcher.Constraint("Vertical", 42),
    Sketcher.Constraint("Symmetric", 0, 2, 42, 2, -1),
    Sketcher.Constraint("Perpendicular", 2, 3),
    Sketcher.Constraint("Parallel", 3, 5),
    Sketcher.Constraint("Perpendicular", 5, 7),
    Sketcher.Constraint("Perpendicular", 7, 8),
    Sketcher.Constraint("Parallel", 8, 10),
    Sketcher.Constraint("Perpendicular", 10, 12),
    Sketcher.Constraint("Perpendicular", 12, 13),
    Sketcher.Constraint("Parallel", 13, 16),
    Sketcher.Constraint("Perpendicular", 16, 18),
    Sketcher.Constraint("Perpendicular", 18, 19),
    Sketcher.Constraint("Parallel", 19, 21),
    Sketcher.Constraint("Perpendicular", 21, 23),
    Sketcher.Constraint("Perpendicular", 23, 24),
    Sketcher.Constraint("Parallel", 24, 26),
    Sketcher.Constraint("Perpendicular", 26, 28),
    Sketcher.Constraint("Perpendicular", 28, 29),
    Sketcher.Constraint("Parallel", 29, 31),
    Sketcher.Constraint("Perpendicular", 31, 33),
    Sketcher.Constraint("Perpendicular", 33, 34),
    Sketcher.Constraint("Parallel", 34, 36),
    Sketcher.Constraint("Perpendicular", 36, 38),
    Sketcher.Constraint("Perpendicular", 38, 39),
    Sketcher.Constraint("Parallel", 39, 41),
    Sketcher.Constraint("Vertical", 1, 2, 5, 2),
    Sketcher.Constraint("Vertical", 2, 2, 7, 2),
    Sketcher.Constraint("Vertical", 4, 2, 8, 2),
    Sketcher.Constraint("Vertical", 6, 2, 10, 2),
    Sketcher.Constraint("Vertical", 7, 2, 12, 2),
    Sketcher.Constraint("Vertical", 9, 2, 13, 2),
    Sketcher.Constraint("Vertical", 14, 2, 15, 2),
    Sketcher.Constraint("Vertical", 11, 2, 16, 2),
    Sketcher.Constraint("Vertical", 12, 2, 18, 2),
    Sketcher.Constraint("Vertical", 19, 2, 20, 2),
    Sketcher.Constraint("Vertical", 17, 2, 21, 2),
    Sketcher.Constraint("Vertical", 18, 2, 23, 2),
    Sketcher.Constraint("Vertical", 24, 2, 25, 2),
    Sketcher.Constraint("Vertical", 22, 2, 26, 2),
    Sketcher.Constraint("Vertical", 23, 2, 28, 2),
    Sketcher.Constraint("Vertical", 29, 2, 30, 2),
    Sketcher.Constraint("Vertical", 27, 2, 31, 2),
    Sketcher.Constraint("Vertical", 28, 2, 33, 2),
    Sketcher.Constraint("Vertical", 34, 2, 35, 2),
    Sketcher.Constraint("Vertical", 32, 2, 36, 2),
    Sketcher.Constraint("Vertical", 33, 2, 38, 2),
    Sketcher.Constraint("Equal", 6, 11),
    Sketcher.Constraint("Equal", 14, 15),
    Sketcher.Constraint("Equal", 15, 20),
    Sketcher.Constraint("Equal", 20, 25),
    Sketcher.Constraint("Equal", 25, 30),
    Sketcher.Constraint("Equal", 30, 35),
    Sketcher.Constraint("Equal", 4, 42),
    Sketcher.Constraint("Angle", 2, Q("50 deg")),
    Sketcher.Constraint("DistanceX", 0, 2, 0, 1, Q("0.75 in")),
    Sketcher.Constraint("DistanceY", -1, 1, 0, 2, Q("3.5 in")),
    Sketcher.Constraint("DistanceX", -1, 1, 0, 2, Q("0.875 in")),
    Sketcher.Constraint("DistanceY", -1, 1, 2, 2, Q("3.4384999 in")),
    Sketcher.Constraint("DistanceY", 38, 2, -1, 1, Q("2.5615001 in")),
    Sketcher.Constraint("Distance", 2, Q("11.0738 mm")),
    Sketcher.Constraint("DistanceY", 6, 2, 6, 1, Q("17.990708 mm")),
    Sketcher.Constraint("DistanceY", 6, 2, 3, 2, Q("20.2424 mm")),
    Sketcher.Constraint("DistanceY", 11, 2, 8, 2, Q("20.2424 mm")),
    Sketcher.Constraint("DistanceY", 17, 2, 13, 2, Q("20.2424 mm")),
    Sketcher.Constraint("DistanceY", 22, 2, 19, 2, Q("20.2424 mm")),
    Sketcher.Constraint("DistanceY", 27, 2, 24, 2, Q("20.2424 mm")),
    Sketcher.Constraint("DistanceY", 32, 2, 29, 2, Q("20.2424 mm")),
])
sketch6.setExpression("Constraints[115]", "Params.sketch6_width")
pad4 = body.newObject("PartDesign::Pad", "Pad003")
pad4.Profile = sketch6
pad4.setExpression("Length", "Params.pad4_length")
pad4.Midplane = True

# Sketch on XY plane
sketch7 = body.newObject("Sketcher::SketchObject", "Sketch006")
sketch7.AttachmentSupport = (doc.getObject("XY_Plane"), [""])
sketch7.MapMode = "FlatFace"
sketch7.AttachmentOffset = App.Placement(V(0, 0, 3.5 * 25.4), App.Rotation())
sketch7.addGeometry([
    Part.LineSegment(V(2, 41, 0), V(2, 22, 0)),  # 0
    Part.LineSegment(V(2, 22, 0), V(19, 22, 0)),  # 1
    Part.LineSegment(V(19, 22, 0), V(19, 41, 0)),  # 2
    Part.LineSegment(V(19, 41, 0), V(2, 41, 0)),  # 3
    Part.LineSegment(V(-19, 41, 0), V(-19, 22, 0)),  # 4
    Part.LineSegment(V(-19, 22, 0), V(-2, 22, 0)),  # 5
    Part.LineSegment(V(-2, 22, 0), V(-2, 41, 0)),  # 6
    Part.LineSegment(V(-2, 41, 0), V(-19, 41, 0)),  # 7
], False)
sketch7.addConstraint([
    Sketcher.Constraint("Coincident", 0, 2, 1, 1),
    Sketcher.Constraint("Coincident", 1, 2, 2, 1),
    Sketcher.Constraint("Coincident", 2, 2, 3, 1),
    Sketcher.Constraint("Coincident", 3, 2, 0, 1),
    Sketcher.Constraint("Coincident", 4, 2, 5, 1),
    Sketcher.Constraint("Coincident", 5, 2, 6, 1),
    Sketcher.Constraint("Coincident", 6, 2, 7, 1),
    Sketcher.Constraint("Coincident", 7, 2, 4, 1),
    Sketcher.Constraint("Vertical", 0),
    Sketcher.Constraint("Horizontal", 1),
    Sketcher.Constraint("Vertical", 2),
    Sketcher.Constraint("Horizontal", 3),
    Sketcher.Constraint("Vertical", 4),
    Sketcher.Constraint("Horizontal", 5),
    Sketcher.Constraint("Vertical", 6),
    Sketcher.Constraint("Horizontal", 7),
    Sketcher.Constraint("Symmetric", 1, 2, 4, 2, -2),
    Sketcher.Constraint("Symmetric", 3, 2, 6, 2, -2),
    Sketcher.Constraint("DistanceY", 0, 2, 0, 1, Q("0.75 in")),
    Sketcher.Constraint("DistanceX", 1, 1, 1, 2, Q("0.640625 in")),
    Sketcher.Constraint("DistanceX", -1, 1, 0, 2, Q("0.09375 in")),
    Sketcher.Constraint("DistanceY", -1, 1, 0, 2, Q("0.875 in")),
])
sketch7.setExpression("Constraints[18]", "Params.sketch7_height")
sketch7.setExpression("Constraints[19]", "Params.sketch7_width")
pocket1 = body.newObject("PartDesign::Pocket", "Pocket")
pocket1.Profile = sketch7
pocket1.Type = "ThroughAll"

doc.recompute()
